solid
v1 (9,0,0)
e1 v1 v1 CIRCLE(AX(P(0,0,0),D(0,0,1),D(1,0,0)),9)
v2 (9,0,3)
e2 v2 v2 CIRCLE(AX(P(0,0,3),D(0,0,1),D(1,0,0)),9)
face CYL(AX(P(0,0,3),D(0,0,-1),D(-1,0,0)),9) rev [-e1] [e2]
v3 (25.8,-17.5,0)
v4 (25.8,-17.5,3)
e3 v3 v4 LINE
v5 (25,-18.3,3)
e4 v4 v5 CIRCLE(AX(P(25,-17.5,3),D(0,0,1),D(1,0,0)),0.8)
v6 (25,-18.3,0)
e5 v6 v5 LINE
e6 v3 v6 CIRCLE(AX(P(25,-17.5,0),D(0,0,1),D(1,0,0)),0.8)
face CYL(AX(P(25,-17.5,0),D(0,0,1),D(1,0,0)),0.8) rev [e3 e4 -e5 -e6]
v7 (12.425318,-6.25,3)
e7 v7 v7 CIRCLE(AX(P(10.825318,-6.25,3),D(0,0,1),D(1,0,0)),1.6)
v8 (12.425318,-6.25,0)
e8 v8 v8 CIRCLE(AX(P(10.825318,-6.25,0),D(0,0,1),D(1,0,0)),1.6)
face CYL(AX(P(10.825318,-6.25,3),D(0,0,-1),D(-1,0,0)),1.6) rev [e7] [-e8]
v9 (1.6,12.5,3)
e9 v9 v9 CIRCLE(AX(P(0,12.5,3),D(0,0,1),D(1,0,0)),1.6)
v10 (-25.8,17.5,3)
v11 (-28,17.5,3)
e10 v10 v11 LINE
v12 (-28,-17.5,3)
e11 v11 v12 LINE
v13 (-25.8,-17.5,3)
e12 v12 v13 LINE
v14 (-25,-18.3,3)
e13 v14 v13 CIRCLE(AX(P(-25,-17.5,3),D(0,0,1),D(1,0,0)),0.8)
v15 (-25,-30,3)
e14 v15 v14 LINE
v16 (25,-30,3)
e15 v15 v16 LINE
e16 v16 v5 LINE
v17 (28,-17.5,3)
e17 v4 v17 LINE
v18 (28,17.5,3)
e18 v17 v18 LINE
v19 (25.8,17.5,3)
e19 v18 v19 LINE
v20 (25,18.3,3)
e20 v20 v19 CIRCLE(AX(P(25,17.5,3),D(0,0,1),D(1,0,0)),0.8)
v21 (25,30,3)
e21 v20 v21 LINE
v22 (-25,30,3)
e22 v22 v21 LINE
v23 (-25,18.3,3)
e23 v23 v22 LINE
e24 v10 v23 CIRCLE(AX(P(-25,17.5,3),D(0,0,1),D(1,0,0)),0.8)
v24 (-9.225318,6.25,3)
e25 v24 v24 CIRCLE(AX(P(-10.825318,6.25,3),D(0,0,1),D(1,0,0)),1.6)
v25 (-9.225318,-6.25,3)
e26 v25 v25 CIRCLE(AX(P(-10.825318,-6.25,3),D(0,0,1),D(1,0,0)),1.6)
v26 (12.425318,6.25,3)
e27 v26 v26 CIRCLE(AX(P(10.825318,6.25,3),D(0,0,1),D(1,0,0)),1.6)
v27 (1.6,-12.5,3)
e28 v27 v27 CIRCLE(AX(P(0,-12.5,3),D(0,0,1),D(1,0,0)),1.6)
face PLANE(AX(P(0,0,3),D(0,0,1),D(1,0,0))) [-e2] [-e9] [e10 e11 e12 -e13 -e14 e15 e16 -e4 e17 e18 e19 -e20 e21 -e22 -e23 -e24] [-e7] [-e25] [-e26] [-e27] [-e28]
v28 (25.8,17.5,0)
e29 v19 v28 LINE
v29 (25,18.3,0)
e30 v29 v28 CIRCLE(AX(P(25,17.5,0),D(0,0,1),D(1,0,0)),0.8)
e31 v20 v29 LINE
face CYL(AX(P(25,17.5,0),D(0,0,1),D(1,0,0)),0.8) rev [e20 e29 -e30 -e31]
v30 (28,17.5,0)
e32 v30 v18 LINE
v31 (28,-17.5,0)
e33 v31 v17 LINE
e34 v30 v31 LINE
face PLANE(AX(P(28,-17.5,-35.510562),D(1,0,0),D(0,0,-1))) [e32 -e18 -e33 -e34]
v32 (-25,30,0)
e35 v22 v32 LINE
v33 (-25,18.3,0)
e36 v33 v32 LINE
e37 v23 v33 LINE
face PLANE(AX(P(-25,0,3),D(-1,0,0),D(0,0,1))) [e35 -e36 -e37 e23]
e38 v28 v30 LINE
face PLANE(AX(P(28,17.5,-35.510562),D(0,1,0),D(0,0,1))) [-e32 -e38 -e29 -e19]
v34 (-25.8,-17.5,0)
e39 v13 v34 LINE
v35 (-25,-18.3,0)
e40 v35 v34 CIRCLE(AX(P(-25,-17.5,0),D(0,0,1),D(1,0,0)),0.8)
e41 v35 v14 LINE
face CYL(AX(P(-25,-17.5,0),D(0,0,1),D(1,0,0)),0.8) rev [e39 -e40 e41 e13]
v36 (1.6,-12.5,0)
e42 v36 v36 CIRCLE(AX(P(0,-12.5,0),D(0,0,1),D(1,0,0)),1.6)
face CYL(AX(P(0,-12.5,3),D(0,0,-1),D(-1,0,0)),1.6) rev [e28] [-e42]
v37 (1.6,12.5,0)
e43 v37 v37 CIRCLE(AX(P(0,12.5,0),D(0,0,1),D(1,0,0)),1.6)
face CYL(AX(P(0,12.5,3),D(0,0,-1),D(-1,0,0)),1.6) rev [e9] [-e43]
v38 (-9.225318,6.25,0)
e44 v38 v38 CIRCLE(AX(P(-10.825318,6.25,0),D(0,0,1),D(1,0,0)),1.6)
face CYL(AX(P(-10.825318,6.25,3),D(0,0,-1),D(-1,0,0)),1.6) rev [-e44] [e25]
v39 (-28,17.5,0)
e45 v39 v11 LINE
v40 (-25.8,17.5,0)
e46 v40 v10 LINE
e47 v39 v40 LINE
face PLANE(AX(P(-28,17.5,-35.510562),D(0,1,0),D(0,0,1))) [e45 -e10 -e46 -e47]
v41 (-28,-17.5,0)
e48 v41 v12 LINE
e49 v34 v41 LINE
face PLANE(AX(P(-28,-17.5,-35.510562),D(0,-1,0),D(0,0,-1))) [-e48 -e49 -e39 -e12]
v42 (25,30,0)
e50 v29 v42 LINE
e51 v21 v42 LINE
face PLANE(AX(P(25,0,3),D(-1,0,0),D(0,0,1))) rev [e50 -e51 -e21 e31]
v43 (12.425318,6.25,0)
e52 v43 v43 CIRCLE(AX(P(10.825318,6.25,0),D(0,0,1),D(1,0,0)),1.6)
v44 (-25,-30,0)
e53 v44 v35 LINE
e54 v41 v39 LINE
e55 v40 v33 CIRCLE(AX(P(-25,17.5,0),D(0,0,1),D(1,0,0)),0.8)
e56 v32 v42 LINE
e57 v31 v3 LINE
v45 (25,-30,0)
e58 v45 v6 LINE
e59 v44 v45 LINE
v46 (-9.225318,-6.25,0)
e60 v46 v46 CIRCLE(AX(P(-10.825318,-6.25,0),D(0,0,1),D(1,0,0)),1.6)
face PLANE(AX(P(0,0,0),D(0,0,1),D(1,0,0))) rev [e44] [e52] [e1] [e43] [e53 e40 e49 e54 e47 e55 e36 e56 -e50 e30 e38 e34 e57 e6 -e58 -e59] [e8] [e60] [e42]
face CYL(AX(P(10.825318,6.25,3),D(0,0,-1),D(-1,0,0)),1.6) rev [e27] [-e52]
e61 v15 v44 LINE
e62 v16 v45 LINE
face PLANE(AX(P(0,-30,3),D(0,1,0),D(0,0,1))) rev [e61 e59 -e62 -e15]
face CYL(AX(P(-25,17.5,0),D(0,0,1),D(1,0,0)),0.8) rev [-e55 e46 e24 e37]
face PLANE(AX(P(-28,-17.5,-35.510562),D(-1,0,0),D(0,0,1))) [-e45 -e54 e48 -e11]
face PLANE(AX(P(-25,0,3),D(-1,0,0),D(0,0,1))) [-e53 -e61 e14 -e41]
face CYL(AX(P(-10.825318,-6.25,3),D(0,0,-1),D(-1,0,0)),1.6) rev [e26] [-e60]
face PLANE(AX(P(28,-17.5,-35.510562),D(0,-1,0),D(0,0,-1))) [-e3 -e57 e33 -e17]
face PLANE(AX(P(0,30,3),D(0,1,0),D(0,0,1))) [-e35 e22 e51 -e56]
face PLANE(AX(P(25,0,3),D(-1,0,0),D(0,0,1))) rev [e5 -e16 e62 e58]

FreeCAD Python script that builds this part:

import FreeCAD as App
import Part
import Sketcher

V = App.Vector
Q = App.Units.Quantity


def add_polygon(sketch, points):
    """Adds a closed chain of lines whose ends are joined by coincident constraints."""
    first, n = sketch.GeometryCount, len(points)
    for a, b in zip(points, points[1:] + points[:1]):
        sketch.addGeometry(Part.LineSegment(App.Vector(*a, 0), App.Vector(*b, 0)), False)
    for i in range(n):
        sketch.addConstraint(Sketcher.Constraint("Coincident", first + i, 2, first + (i + 1) % n, 1))

doc = App.newDocument("Part")
body = doc.addObject("PartDesign::Body", "Body")

sketch1 = body.newObject("Sketcher::SketchObject", "Sketch")
sketch1.AttachmentSupport = (doc.getObject("XY_Plane"), [""])
sketch1.MapMode = "FlatFace"
add_polygon(sketch1, [(-25, 30), (-25, -30), (25, -30), (25, 30)])
sketch1.addGeometry(Part.Circle(V(-10.825318, -6.25, 0), V(0, 0, 1), 1.6), False)
sketch1.addGeometry(Part.Circle(V(0, -12.5, 0), V(0, 0, 1), 1.6), False)
sketch1.addGeometry(Part.Circle(V(10.825318, -6.25, 0), V(0, 0, 1), 1.6), False)
sketch1.addGeometry(Part.Circle(V(-10.825318, 6.25, 0), V(0, 0, 1), 1.6), False)
sketch1.addGeometry(Part.Circle(V(0, 0, 0), V(0, 0, 1), 9), False)
sketch1.addGeometry(Part.Circle(V(10.825318, 6.25, 0), V(0, 0, 1), 1.6), False)
sketch1.addGeometry(Part.Circle(V(0, 12.5, 0), V(0, 0, 1), 1.6), False)
sketch1.addConstraint([
    Sketcher.Constraint("Vertical", 0),
    Sketcher.Constraint("Horizontal", 1),
    Sketcher.Constraint("Vertical", 2),
    Sketcher.Constraint("Horizontal", 3),
    Sketcher.Constraint("Coincident", 8, 3, -1, 1),
    Sketcher.Constraint("Equal", 4, 5),
    Sketcher.Constraint("Equal", 5, 6),
    Sketcher.Constraint("Equal", 6, 7),
    Sketcher.Constraint("Equal", 7, 9),
    Sketcher.Constraint("Equal", 9, 10),
    Sketcher.Constraint("Symmetric", 6, 3, 7, 3, -1, 1),
    Sketcher.Constraint("Symmetric", 4, 3, 9, 3, -1, 1),
    Sketcher.Constraint("Symmetric", 5, 3, 10, 3, -1, 1),
    Sketcher.Constraint("Symmetric", 0, 2, 2, 2, -1, 1),
    Sketcher.Constraint("Symmetric", 4, 3, 6, 3, -2),
    Sketcher.Constraint("PointOnObject", 5, 3, -2),
    Sketcher.Constraint("Diameter", 8, Q("18 mm")),
    Sketcher.Constraint("Diameter", 4, Q("3.2 mm")),
    Sketcher.Constraint("DistanceX", 1, 1, 1, 2, Q("50 mm")),
    Sketcher.Constraint("DistanceY", 0, 2, 0, 1, Q("60 mm")),
    Sketcher.Constraint("DistanceY", 5, 3, -1, 1, Q("12.5 mm")),
    Sketcher.Constraint("DistanceY", 4, 3, 7, 3, Q("12.5 mm")),
    Sketcher.Constraint("DistanceX", 4, 3, -1, 1, Q("10.825318 mm")),
])
pad1 = body.newObject("PartDesign::Pad", "Pad")
pad1.Profile = sketch1
pad1.Length = 3

sketch2 = body.newObject("Sketcher::SketchObject", "Sketch001")
sketch2.AttachmentSupport = (doc.getObject("XY_Plane"), [""])
sketch2.MapMode = "FlatFace"
sketch2.AttachmentOffset = App.Placement(V(0, 0, 3), App.Rotation())
add_polygon(sketch2, [(-28, 17.5), (-28, -17.5), (-22, -17.5), (-22, 17.5)])
add_polygon(sketch2, [(22, 17.5), (22, -17.5), (28, -17.5), (28, 17.5)])
sketch2.addConstraint([
    Sketcher.Constraint("Vertical", 0),
    Sketcher.Constraint("Horizontal", 1),
    Sketcher.Constraint("Vertical", 2),
    Sketcher.Constraint("Horizontal", 3),
    Sketcher.Constraint("Vertical", 4),
    Sketcher.Constraint("Horizontal", 5),
    Sketcher.Constraint("Vertical", 6),
    Sketcher.Constraint("Horizontal", 7),
    Sketcher.Constraint("Symmetric", 2, 2, 4, 2, -1, 1),
    Sketcher.Constraint("Symmetric", 0, 2, 6, 2, -1, 1),
    Sketcher.Constraint("Horizontal", 1, 2, 4, 2),
    Sketcher.Constraint("DistanceX", 1, 1, 1, 2, Q("6 mm")),
    Sketcher.Constraint("DistanceY", 0, 2, 0, 1, Q("35 mm")),
    Sketcher.Constraint("DistanceX", 0, 2, -1, 1, Q("28 mm")),
])
pad2 = body.newObject("PartDesign::Pad", "Pad001")
pad2.Profile = sketch2
pad2.Length = 3
pad2.Reversed = True

sketch3 = body.newObject("Sketcher::SketchObject", "Sketch002")
sketch3.AttachmentSupport = (doc.getObject("XY_Plane"), [""])
sketch3.MapMode = "FlatFace"
sketch3.AttachmentOffset = App.Placement(V(0, 0, 3), App.Rotation())
sketch3.addGeometry([
    Part.Circle(V(-25, 17.5, 0), V(0, 0, 1), 0.8),
    Part.Circle(V(-25, -17.5, 0), V(0, 0, 1), 0.8),
    Part.Circle(V(25, 17.5, 0), V(0, 0, 1), 0.8),
    Part.Circle(V(25, -17.5, 0), V(0, 0, 1), 0.8),
], False)
sketch3.addConstraint([
    Sketcher.Constraint("Equal", 0, 1),
    Sketcher.Constraint("Equal", 1, 2),
    Sketcher.Constraint("Equal", 2, 3),
    Sketcher.Constraint("Symmetric", 1, 3, 2, 3, -1, 1),
    Sketcher.Constraint("Symmetric", 0, 3, 3, 3, -1, 1),
    Sketcher.Constraint("Symmetric", 0, 3, 2, 3, -2),
    Sketcher.Constraint("Diameter", 0, Q("1.6 mm")),
    Sketcher.Constraint("DistanceX", 0, 3, -1, 1, Q("25 mm")),
    Sketcher.Constraint("DistanceY", 1, 3, 0, 3, Q("35 mm")),
])
pocket1 = body.newObject("PartDesign::Pocket", "Pocket")
pocket1.Profile = sketch3
pocket1.Type = "ThroughAll"

doc.recompute()
